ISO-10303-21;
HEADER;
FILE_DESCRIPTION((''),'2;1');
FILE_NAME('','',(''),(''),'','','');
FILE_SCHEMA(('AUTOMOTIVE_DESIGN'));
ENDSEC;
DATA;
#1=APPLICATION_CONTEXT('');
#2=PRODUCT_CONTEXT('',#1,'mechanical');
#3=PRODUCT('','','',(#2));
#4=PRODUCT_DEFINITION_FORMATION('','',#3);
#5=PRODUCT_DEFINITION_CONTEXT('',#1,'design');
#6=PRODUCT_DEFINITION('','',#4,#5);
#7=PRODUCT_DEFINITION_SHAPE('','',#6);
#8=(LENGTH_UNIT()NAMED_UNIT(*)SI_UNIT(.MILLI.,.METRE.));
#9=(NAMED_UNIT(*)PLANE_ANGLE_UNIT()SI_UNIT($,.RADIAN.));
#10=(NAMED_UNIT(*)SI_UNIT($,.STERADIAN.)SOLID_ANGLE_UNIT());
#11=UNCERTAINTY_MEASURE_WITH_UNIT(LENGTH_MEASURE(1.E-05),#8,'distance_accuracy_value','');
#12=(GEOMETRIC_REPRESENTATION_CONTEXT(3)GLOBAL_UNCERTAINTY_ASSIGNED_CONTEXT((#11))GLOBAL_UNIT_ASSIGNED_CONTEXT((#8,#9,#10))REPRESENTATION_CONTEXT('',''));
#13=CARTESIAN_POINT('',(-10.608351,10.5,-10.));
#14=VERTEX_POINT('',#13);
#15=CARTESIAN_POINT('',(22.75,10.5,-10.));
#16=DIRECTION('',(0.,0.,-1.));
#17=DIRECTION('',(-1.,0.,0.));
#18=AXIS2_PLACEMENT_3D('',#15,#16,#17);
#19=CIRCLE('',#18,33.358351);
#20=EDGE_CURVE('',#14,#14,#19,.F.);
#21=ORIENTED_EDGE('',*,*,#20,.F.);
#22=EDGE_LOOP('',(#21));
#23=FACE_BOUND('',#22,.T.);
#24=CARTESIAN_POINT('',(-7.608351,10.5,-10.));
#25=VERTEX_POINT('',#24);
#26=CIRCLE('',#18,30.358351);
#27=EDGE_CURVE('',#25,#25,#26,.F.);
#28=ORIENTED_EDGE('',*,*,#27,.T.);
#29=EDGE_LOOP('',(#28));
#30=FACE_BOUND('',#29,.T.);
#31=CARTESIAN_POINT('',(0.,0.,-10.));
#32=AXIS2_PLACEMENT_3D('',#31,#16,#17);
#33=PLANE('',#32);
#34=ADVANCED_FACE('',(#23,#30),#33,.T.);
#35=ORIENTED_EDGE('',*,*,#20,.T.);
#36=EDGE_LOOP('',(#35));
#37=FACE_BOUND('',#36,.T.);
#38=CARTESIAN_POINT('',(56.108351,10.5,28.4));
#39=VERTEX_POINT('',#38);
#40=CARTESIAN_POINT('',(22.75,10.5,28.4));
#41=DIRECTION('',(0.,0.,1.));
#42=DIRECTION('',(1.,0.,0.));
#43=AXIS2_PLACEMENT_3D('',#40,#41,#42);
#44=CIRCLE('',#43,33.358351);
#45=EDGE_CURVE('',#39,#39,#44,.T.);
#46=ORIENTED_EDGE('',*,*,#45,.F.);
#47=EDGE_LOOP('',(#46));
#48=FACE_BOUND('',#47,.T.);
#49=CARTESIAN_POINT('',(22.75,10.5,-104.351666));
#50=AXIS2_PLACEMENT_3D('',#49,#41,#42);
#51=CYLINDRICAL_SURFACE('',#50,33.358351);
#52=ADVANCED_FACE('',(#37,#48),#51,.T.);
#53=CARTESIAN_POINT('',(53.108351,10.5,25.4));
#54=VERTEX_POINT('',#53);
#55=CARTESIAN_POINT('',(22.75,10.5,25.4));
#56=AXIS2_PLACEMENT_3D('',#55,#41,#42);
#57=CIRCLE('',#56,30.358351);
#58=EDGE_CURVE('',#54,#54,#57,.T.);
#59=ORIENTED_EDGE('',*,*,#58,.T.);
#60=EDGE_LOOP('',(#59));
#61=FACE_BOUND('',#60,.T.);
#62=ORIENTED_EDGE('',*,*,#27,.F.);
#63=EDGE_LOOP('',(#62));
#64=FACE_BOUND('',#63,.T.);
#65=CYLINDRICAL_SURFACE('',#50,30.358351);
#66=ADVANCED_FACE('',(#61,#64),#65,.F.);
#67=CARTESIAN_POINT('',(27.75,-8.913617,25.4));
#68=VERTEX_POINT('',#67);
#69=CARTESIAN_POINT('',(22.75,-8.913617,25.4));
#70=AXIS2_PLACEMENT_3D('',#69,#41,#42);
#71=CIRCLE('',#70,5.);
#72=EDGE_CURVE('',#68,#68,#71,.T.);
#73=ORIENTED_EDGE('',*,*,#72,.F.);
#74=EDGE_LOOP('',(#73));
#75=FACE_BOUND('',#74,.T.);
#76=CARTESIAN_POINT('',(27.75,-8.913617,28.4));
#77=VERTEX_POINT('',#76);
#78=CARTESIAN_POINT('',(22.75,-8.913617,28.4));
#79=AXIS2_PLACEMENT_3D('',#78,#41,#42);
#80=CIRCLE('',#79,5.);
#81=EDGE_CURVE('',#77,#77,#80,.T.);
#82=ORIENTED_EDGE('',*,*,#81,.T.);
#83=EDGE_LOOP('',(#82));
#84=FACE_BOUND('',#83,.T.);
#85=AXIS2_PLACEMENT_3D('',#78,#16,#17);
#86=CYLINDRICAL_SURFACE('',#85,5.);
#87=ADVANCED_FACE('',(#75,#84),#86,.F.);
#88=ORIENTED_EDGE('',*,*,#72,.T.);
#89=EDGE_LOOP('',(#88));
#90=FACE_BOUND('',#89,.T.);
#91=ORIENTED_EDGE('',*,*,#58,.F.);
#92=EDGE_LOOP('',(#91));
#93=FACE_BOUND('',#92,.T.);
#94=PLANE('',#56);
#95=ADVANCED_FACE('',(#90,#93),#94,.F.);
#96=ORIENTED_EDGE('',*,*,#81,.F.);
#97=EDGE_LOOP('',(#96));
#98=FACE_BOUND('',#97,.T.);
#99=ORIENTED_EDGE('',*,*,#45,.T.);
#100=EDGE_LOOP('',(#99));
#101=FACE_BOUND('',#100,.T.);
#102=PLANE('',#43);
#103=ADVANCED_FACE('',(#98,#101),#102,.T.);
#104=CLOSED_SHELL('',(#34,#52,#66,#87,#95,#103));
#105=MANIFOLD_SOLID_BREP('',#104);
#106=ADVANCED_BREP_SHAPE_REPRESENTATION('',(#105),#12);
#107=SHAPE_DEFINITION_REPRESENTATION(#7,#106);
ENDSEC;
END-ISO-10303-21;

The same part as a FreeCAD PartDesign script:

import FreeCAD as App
import Part
import Sketcher

doc = App.newDocument("Part")
params = doc.addObject("Spreadsheet::Sheet", "Params")
for row, (alias, value) in enumerate([
    ("pad1_length", "25.4 mm"),
    ("pad1_length2", "10 mm"),
    ("sketch2_diameter", "10 mm"),
    ("pad2_length", "3 mm"),
], start=1):
    params.set(f"A{row}", alias)
    params.set(f"B{row}", "=" + value)
    params.setAlias(f"B{row}", alias)

body = doc.addObject("PartDesign::Body", "Body")

# Sketch on XY plane
sketch1 = doc.addObject("Sketcher::SketchObject", "Sketch")
body.addObject(sketch1)
sketch1.AttachmentSupport = (doc.XY_Plane, [""])
sketch1.MapMode = "FlatFace"
sketch1.addGeometry([
    Part.Circle(App.Vector(22.75, 10.5, 0), App.Vector(0, 0, 1), 33.358351),
    Part.Circle(App.Vector(22.75, 10.5, 0), App.Vector(0, 0, 1), 30.358351),
], False)
sketch1.addConstraint([
    Sketcher.Constraint("Coincident", 1, 3, 0, 3),
    Sketcher.Constraint("DistanceY", -1, 1, 0, 3, 10.5),
    Sketcher.Constraint("DistanceX", -1, 1, 0, 3, 22.75),
    Sketcher.Constraint("Diameter", 0, 66.716703),
    Sketcher.Constraint("Diameter", 1, 60.716703),
])
pad1 = doc.addObject("PartDesign::Pad", "Pad")
body.addObject(pad1)
pad1.Profile = sketch1
pad1.Type = "TwoLengths"
pad1.setExpression("Length", "Params.pad1_length")
pad1.setExpression("Length2", "Params.pad1_length2")

# Sketch on XY plane
sketch2 = doc.addObject("Sketcher::SketchObject", "Sketch001")
body.addObject(sketch2)
sketch2.AttachmentSupport = (doc.XY_Plane, [""])
sketch2.MapMode = "FlatFace"
sketch2.AttachmentOffset = App.Placement(App.Vector(0, 0, 25.4), App.Rotation())
sketch2.addGeometry([
    Part.Circle(App.Vector(22.75, 10.5, 0), App.Vector(0, 0, 1), 33.358351),
    Part.Circle(App.Vector(22.75, -8.913617, 0), App.Vector(0, 0, 1), 5),
], False)
sketch2.addConstraint([
    Sketcher.Constraint("Vertical", 0, 3, 1, 3),
    Sketcher.Constraint("Diameter", 1, 10.0),
    Sketcher.Constraint("DistanceY", -1, 1, 0, 3, 10.5),
    Sketcher.Constraint("DistanceX", -1, 1, 0, 3, 22.75),
    Sketcher.Constraint("Diameter", 0, 66.716703),
    Sketcher.Constraint("DistanceY", 1, 3, -1, 1, 8.913617),
])
sketch2.setExpression("Constraints[1]", "Params.sketch2_diameter")
pad2 = doc.addObject("PartDesign::Pad", "Pad001")
body.addObject(pad2)
pad2.Profile = sketch2
pad2.setExpression("Length", "Params.pad2_length")

doc.recompute()
